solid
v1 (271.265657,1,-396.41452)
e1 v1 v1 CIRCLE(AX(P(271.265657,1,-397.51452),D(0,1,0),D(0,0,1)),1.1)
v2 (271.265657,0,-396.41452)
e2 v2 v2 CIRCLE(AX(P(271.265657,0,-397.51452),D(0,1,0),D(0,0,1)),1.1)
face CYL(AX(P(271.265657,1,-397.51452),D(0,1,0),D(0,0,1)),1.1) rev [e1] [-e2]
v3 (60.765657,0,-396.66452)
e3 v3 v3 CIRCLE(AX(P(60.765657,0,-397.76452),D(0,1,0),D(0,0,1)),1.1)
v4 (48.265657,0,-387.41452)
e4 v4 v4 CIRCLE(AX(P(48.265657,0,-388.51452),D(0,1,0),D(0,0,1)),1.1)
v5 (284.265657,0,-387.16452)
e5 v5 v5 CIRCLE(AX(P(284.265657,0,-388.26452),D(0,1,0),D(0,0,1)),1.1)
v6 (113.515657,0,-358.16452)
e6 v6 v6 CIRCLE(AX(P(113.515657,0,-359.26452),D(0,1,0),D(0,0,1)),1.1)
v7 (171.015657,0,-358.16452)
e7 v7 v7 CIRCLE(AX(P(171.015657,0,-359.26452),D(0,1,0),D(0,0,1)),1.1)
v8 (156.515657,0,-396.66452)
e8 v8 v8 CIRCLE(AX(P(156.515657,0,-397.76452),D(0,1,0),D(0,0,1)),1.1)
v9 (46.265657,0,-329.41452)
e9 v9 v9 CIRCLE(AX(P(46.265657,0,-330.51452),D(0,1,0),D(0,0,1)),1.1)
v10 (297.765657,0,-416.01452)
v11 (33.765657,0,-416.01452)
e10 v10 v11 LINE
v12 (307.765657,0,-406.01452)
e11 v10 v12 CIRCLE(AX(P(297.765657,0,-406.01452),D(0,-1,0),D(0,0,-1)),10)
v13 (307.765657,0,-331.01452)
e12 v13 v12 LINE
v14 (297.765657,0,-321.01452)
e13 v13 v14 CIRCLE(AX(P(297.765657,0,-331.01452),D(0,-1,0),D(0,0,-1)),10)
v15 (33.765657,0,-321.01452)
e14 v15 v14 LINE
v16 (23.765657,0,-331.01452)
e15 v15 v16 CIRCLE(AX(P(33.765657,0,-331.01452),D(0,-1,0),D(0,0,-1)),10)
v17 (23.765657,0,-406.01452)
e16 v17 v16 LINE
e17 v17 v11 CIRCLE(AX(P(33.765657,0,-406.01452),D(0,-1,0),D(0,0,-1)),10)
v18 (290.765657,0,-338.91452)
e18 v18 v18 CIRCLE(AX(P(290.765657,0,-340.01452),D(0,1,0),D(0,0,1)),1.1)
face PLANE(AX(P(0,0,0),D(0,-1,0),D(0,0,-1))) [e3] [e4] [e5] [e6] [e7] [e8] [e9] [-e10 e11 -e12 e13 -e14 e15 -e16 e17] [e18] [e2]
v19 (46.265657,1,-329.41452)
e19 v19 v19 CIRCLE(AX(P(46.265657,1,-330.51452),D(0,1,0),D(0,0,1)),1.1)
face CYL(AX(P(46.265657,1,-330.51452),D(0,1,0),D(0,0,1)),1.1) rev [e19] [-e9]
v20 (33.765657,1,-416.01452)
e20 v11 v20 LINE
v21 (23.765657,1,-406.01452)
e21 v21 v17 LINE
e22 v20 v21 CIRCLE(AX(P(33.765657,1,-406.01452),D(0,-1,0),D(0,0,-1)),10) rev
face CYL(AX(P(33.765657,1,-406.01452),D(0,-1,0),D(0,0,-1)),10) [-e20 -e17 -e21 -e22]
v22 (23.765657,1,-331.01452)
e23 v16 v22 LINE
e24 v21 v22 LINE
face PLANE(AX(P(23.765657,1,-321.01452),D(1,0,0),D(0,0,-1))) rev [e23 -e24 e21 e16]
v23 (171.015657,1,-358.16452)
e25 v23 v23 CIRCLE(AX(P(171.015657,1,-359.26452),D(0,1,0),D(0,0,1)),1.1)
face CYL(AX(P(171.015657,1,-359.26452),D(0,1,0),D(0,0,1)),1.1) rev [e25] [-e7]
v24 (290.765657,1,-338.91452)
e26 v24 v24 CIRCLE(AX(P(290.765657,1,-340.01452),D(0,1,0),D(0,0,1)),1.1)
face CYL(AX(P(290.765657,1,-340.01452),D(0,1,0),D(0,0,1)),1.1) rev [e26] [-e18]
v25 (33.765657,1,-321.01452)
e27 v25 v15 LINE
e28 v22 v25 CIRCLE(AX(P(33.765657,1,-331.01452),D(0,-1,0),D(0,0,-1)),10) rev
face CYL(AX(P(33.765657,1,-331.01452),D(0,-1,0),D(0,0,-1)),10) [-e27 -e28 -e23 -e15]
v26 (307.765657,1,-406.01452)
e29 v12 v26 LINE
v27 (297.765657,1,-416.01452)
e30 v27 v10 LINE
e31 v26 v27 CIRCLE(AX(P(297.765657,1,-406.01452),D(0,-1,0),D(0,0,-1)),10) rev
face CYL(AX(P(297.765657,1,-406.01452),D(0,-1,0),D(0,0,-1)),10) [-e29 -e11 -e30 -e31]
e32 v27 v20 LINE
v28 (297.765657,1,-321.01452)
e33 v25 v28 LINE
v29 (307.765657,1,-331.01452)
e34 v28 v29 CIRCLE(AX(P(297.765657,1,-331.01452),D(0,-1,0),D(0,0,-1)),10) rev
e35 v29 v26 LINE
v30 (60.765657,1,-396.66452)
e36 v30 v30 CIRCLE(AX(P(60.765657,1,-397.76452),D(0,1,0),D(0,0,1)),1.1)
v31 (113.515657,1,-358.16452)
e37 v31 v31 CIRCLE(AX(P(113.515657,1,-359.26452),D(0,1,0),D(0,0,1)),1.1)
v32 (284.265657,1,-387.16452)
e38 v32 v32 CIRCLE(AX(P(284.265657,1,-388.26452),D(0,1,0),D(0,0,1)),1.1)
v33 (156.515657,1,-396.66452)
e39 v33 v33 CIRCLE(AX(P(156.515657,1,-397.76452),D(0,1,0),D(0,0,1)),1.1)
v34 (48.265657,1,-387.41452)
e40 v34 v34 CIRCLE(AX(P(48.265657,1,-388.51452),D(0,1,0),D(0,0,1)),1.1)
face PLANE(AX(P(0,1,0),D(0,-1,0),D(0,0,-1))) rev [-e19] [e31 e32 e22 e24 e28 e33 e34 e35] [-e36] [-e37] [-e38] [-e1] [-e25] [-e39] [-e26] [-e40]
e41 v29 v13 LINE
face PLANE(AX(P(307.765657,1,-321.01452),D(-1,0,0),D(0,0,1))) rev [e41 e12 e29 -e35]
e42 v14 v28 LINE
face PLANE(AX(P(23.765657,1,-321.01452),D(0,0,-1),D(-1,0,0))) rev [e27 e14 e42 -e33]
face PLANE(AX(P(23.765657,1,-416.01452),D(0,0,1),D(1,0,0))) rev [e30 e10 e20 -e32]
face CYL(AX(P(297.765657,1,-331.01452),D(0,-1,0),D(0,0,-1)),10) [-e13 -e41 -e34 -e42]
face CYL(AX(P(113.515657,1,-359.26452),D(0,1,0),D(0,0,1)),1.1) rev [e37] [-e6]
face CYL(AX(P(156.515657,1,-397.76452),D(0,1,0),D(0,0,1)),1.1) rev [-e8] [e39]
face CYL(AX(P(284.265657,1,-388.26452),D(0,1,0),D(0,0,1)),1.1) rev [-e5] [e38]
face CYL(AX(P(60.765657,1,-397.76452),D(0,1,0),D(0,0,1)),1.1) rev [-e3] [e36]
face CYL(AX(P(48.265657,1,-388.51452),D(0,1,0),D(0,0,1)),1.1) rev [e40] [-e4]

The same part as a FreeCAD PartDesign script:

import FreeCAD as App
import Part
import Sketcher
from FreeCAD import Vector
Q = App.Units.Quantity


def edges_at(feature, points):
    """Names of the edges that pass closest to the given points."""
    edges = feature.Shape.Edges
    near = lambda p: min(range(len(edges)), key=lambda i: edges[i].distToShape(Part.Vertex(*p))[0])
    return sorted({f"Edge{near(p) + 1}" for p in points})


def add_polygon(sketch, points):
    """Adds a closed chain of lines whose ends are joined by coincident constraints."""
    first, n = sketch.GeometryCount, len(points)
    for a, b in zip(points, points[1:] + points[:1]):
        sketch.addGeometry(Part.LineSegment(App.Vector(*a, 0), App.Vector(*b, 0)), False)
    for i in range(n):
        sketch.addConstraint(Sketcher.Constraint("Coincident", first + i, 2, first + (i + 1) % n, 1))

doc = App.newDocument("Part")
body = doc.addObject("PartDesign::Body", "Body")

sketch1 = body.newObject("Sketcher::SketchObject", "Sketch")
sketch1.AttachmentSupport = (doc.getObject("XZ_Plane"), [""])
sketch1.MapMode = "FlatFace"
add_polygon(sketch1, [(24, -416), (24, -321), (308, -321), (308, -416)])
sketch1.addConstraint([
    Sketcher.Constraint("Vertical", 0),
    Sketcher.Constraint("Horizontal", 1),
    Sketcher.Constraint("Vertical", 2),
    Sketcher.Constraint("Horizontal", 3),
    Sketcher.Constraint("DistanceX", 1, 1, 1, 2, Q("284 mm")),
    Sketcher.Constraint("DistanceY", 0, 1, 0, 2, Q("95 mm")),
    Sketcher.Constraint("DistanceY", 0, 2, -1, 1, Q("321.01452 mm")),
    Sketcher.Constraint("DistanceX", -1, 1, 0, 2, Q("23.765657 mm")),
])
pad1 = body.newObject("PartDesign::Pad", "Pad")
pad1.Profile = sketch1
pad1.Length = 1
pad1.Reversed = True

sketch2 = body.newObject("Sketcher::SketchObject", "Sketch001")
sketch2.AttachmentSupport = (doc.getObject("XZ_Plane"), [""])
sketch2.MapMode = "FlatFace"
sketch2.AttachmentOffset = App.Placement(Vector(0, 0, -1), App.Rotation())
sketch2.addGeometry([
    Part.Circle(Vector(48.3, -388.5, 0), Vector(0, 0, 1), 1.1),
    Part.Circle(Vector(60.8, -397.8, 0), Vector(0, 0, 1), 1.1),
    Part.Circle(Vector(46.3, -330.5, 0), Vector(0, 0, 1), 1.1),
    Part.Circle(Vector(113.5, -359.3, 0), Vector(0, 0, 1), 1.1),
    Part.Circle(Vector(156.5, -397.8, 0), Vector(0, 0, 1), 1.1),
    Part.Circle(Vector(171, -359.3, 0), Vector(0, 0, 1), 1.1),
    Part.Circle(Vector(271.3, -397.5, 0), Vector(0, 0, 1), 1.1),
    Part.Circle(Vector(284.3, -388.3, 0), Vector(0, 0, 1), 1.1),
    Part.Circle(Vector(290.8, -340, 0), Vector(0, 0, 1), 1.1),
], False)
sketch2.addConstraint([
    Sketcher.Constraint("Equal", 0, 1),
    Sketcher.Constraint("Equal", 1, 2),
    Sketcher.Constraint("Equal", 2, 3),
    Sketcher.Constraint("Equal", 3, 4),
    Sketcher.Constraint("Equal", 4, 5),
    Sketcher.Constraint("Equal", 5, 6),
    Sketcher.Constraint("Equal", 6, 7),
    Sketcher.Constraint("Equal", 7, 8),
    Sketcher.Constraint("Horizontal", 1, 3, 4, 3),
    Sketcher.Constraint("Horizontal", 3, 3, 5, 3),
    Sketcher.Constraint("Diameter", 0, Q("2.2 mm")),
    Sketcher.Constraint("DistanceX", 2, 3, 0, 3, Q("2 mm")),
    Sketcher.Constraint("DistanceY", 0, 3, 2, 3, Q("58 mm")),
    Sketcher.Constraint("DistanceX", 3, 3, 4, 3, Q("43 mm")),
    Sketcher.Constraint("DistanceX", 0, 3, 6, 3, Q("223 mm")),
    Sketcher.Constraint("DistanceY", 6, 3, 0, 3, Q("9 mm")),
    Sketcher.Constraint("DistanceX", 6, 3, 7, 3, Q("13 mm")),
    Sketcher.Constraint("DistanceY", 7, 3, 5, 3, Q("29 mm")),
    Sketcher.Constraint("DistanceX", 0, 3, 1, 3, Q("12.5 mm")),
    Sketcher.Constraint("DistanceY", 1, 3, 3, 3, Q("38.5 mm")),
    Sketcher.Constraint("DistanceX", 4, 3, 5, 3, Q("14.5 mm")),
    Sketcher.Constraint("DistanceX", 7, 3, 8, 3, Q("6.5 mm")),
    Sketcher.Constraint("DistanceY", 6, 3, 8, 3, Q("57.5 mm")),
    Sketcher.Constraint("DistanceY", 1, 3, 0, 3, Q("9.25 mm")),
    Sketcher.Constraint("DistanceX", 1, 3, 3, 3, Q("52.75 mm")),
    Sketcher.Constraint("DistanceY", 0, 3, -1, 1, Q("388.51452 mm")),
    Sketcher.Constraint("DistanceX", -1, 1, 0, 3, Q("48.265657 mm")),
])
doc.recompute()
hole = body.newObject("PartDesign::Hole", "Hole")
hole.Profile = sketch2
hole.ThreadType = "None"
hole.Diameter = 2.2
hole.DepthType = "ThroughAll"
hole.Reversed = True
doc.recompute()

fillet = body.newObject("PartDesign::Fillet", "Fillet")
fillet.Base = (hole, edges_at(hole, [
    (23.766, 0.5, -416.015),
    (307.766, 0.5, -416.015),
    (307.766, 0.5, -321.015),
    (23.766, 0.5, -321.015),
]))
fillet.Radius = 10

doc.recompute()
